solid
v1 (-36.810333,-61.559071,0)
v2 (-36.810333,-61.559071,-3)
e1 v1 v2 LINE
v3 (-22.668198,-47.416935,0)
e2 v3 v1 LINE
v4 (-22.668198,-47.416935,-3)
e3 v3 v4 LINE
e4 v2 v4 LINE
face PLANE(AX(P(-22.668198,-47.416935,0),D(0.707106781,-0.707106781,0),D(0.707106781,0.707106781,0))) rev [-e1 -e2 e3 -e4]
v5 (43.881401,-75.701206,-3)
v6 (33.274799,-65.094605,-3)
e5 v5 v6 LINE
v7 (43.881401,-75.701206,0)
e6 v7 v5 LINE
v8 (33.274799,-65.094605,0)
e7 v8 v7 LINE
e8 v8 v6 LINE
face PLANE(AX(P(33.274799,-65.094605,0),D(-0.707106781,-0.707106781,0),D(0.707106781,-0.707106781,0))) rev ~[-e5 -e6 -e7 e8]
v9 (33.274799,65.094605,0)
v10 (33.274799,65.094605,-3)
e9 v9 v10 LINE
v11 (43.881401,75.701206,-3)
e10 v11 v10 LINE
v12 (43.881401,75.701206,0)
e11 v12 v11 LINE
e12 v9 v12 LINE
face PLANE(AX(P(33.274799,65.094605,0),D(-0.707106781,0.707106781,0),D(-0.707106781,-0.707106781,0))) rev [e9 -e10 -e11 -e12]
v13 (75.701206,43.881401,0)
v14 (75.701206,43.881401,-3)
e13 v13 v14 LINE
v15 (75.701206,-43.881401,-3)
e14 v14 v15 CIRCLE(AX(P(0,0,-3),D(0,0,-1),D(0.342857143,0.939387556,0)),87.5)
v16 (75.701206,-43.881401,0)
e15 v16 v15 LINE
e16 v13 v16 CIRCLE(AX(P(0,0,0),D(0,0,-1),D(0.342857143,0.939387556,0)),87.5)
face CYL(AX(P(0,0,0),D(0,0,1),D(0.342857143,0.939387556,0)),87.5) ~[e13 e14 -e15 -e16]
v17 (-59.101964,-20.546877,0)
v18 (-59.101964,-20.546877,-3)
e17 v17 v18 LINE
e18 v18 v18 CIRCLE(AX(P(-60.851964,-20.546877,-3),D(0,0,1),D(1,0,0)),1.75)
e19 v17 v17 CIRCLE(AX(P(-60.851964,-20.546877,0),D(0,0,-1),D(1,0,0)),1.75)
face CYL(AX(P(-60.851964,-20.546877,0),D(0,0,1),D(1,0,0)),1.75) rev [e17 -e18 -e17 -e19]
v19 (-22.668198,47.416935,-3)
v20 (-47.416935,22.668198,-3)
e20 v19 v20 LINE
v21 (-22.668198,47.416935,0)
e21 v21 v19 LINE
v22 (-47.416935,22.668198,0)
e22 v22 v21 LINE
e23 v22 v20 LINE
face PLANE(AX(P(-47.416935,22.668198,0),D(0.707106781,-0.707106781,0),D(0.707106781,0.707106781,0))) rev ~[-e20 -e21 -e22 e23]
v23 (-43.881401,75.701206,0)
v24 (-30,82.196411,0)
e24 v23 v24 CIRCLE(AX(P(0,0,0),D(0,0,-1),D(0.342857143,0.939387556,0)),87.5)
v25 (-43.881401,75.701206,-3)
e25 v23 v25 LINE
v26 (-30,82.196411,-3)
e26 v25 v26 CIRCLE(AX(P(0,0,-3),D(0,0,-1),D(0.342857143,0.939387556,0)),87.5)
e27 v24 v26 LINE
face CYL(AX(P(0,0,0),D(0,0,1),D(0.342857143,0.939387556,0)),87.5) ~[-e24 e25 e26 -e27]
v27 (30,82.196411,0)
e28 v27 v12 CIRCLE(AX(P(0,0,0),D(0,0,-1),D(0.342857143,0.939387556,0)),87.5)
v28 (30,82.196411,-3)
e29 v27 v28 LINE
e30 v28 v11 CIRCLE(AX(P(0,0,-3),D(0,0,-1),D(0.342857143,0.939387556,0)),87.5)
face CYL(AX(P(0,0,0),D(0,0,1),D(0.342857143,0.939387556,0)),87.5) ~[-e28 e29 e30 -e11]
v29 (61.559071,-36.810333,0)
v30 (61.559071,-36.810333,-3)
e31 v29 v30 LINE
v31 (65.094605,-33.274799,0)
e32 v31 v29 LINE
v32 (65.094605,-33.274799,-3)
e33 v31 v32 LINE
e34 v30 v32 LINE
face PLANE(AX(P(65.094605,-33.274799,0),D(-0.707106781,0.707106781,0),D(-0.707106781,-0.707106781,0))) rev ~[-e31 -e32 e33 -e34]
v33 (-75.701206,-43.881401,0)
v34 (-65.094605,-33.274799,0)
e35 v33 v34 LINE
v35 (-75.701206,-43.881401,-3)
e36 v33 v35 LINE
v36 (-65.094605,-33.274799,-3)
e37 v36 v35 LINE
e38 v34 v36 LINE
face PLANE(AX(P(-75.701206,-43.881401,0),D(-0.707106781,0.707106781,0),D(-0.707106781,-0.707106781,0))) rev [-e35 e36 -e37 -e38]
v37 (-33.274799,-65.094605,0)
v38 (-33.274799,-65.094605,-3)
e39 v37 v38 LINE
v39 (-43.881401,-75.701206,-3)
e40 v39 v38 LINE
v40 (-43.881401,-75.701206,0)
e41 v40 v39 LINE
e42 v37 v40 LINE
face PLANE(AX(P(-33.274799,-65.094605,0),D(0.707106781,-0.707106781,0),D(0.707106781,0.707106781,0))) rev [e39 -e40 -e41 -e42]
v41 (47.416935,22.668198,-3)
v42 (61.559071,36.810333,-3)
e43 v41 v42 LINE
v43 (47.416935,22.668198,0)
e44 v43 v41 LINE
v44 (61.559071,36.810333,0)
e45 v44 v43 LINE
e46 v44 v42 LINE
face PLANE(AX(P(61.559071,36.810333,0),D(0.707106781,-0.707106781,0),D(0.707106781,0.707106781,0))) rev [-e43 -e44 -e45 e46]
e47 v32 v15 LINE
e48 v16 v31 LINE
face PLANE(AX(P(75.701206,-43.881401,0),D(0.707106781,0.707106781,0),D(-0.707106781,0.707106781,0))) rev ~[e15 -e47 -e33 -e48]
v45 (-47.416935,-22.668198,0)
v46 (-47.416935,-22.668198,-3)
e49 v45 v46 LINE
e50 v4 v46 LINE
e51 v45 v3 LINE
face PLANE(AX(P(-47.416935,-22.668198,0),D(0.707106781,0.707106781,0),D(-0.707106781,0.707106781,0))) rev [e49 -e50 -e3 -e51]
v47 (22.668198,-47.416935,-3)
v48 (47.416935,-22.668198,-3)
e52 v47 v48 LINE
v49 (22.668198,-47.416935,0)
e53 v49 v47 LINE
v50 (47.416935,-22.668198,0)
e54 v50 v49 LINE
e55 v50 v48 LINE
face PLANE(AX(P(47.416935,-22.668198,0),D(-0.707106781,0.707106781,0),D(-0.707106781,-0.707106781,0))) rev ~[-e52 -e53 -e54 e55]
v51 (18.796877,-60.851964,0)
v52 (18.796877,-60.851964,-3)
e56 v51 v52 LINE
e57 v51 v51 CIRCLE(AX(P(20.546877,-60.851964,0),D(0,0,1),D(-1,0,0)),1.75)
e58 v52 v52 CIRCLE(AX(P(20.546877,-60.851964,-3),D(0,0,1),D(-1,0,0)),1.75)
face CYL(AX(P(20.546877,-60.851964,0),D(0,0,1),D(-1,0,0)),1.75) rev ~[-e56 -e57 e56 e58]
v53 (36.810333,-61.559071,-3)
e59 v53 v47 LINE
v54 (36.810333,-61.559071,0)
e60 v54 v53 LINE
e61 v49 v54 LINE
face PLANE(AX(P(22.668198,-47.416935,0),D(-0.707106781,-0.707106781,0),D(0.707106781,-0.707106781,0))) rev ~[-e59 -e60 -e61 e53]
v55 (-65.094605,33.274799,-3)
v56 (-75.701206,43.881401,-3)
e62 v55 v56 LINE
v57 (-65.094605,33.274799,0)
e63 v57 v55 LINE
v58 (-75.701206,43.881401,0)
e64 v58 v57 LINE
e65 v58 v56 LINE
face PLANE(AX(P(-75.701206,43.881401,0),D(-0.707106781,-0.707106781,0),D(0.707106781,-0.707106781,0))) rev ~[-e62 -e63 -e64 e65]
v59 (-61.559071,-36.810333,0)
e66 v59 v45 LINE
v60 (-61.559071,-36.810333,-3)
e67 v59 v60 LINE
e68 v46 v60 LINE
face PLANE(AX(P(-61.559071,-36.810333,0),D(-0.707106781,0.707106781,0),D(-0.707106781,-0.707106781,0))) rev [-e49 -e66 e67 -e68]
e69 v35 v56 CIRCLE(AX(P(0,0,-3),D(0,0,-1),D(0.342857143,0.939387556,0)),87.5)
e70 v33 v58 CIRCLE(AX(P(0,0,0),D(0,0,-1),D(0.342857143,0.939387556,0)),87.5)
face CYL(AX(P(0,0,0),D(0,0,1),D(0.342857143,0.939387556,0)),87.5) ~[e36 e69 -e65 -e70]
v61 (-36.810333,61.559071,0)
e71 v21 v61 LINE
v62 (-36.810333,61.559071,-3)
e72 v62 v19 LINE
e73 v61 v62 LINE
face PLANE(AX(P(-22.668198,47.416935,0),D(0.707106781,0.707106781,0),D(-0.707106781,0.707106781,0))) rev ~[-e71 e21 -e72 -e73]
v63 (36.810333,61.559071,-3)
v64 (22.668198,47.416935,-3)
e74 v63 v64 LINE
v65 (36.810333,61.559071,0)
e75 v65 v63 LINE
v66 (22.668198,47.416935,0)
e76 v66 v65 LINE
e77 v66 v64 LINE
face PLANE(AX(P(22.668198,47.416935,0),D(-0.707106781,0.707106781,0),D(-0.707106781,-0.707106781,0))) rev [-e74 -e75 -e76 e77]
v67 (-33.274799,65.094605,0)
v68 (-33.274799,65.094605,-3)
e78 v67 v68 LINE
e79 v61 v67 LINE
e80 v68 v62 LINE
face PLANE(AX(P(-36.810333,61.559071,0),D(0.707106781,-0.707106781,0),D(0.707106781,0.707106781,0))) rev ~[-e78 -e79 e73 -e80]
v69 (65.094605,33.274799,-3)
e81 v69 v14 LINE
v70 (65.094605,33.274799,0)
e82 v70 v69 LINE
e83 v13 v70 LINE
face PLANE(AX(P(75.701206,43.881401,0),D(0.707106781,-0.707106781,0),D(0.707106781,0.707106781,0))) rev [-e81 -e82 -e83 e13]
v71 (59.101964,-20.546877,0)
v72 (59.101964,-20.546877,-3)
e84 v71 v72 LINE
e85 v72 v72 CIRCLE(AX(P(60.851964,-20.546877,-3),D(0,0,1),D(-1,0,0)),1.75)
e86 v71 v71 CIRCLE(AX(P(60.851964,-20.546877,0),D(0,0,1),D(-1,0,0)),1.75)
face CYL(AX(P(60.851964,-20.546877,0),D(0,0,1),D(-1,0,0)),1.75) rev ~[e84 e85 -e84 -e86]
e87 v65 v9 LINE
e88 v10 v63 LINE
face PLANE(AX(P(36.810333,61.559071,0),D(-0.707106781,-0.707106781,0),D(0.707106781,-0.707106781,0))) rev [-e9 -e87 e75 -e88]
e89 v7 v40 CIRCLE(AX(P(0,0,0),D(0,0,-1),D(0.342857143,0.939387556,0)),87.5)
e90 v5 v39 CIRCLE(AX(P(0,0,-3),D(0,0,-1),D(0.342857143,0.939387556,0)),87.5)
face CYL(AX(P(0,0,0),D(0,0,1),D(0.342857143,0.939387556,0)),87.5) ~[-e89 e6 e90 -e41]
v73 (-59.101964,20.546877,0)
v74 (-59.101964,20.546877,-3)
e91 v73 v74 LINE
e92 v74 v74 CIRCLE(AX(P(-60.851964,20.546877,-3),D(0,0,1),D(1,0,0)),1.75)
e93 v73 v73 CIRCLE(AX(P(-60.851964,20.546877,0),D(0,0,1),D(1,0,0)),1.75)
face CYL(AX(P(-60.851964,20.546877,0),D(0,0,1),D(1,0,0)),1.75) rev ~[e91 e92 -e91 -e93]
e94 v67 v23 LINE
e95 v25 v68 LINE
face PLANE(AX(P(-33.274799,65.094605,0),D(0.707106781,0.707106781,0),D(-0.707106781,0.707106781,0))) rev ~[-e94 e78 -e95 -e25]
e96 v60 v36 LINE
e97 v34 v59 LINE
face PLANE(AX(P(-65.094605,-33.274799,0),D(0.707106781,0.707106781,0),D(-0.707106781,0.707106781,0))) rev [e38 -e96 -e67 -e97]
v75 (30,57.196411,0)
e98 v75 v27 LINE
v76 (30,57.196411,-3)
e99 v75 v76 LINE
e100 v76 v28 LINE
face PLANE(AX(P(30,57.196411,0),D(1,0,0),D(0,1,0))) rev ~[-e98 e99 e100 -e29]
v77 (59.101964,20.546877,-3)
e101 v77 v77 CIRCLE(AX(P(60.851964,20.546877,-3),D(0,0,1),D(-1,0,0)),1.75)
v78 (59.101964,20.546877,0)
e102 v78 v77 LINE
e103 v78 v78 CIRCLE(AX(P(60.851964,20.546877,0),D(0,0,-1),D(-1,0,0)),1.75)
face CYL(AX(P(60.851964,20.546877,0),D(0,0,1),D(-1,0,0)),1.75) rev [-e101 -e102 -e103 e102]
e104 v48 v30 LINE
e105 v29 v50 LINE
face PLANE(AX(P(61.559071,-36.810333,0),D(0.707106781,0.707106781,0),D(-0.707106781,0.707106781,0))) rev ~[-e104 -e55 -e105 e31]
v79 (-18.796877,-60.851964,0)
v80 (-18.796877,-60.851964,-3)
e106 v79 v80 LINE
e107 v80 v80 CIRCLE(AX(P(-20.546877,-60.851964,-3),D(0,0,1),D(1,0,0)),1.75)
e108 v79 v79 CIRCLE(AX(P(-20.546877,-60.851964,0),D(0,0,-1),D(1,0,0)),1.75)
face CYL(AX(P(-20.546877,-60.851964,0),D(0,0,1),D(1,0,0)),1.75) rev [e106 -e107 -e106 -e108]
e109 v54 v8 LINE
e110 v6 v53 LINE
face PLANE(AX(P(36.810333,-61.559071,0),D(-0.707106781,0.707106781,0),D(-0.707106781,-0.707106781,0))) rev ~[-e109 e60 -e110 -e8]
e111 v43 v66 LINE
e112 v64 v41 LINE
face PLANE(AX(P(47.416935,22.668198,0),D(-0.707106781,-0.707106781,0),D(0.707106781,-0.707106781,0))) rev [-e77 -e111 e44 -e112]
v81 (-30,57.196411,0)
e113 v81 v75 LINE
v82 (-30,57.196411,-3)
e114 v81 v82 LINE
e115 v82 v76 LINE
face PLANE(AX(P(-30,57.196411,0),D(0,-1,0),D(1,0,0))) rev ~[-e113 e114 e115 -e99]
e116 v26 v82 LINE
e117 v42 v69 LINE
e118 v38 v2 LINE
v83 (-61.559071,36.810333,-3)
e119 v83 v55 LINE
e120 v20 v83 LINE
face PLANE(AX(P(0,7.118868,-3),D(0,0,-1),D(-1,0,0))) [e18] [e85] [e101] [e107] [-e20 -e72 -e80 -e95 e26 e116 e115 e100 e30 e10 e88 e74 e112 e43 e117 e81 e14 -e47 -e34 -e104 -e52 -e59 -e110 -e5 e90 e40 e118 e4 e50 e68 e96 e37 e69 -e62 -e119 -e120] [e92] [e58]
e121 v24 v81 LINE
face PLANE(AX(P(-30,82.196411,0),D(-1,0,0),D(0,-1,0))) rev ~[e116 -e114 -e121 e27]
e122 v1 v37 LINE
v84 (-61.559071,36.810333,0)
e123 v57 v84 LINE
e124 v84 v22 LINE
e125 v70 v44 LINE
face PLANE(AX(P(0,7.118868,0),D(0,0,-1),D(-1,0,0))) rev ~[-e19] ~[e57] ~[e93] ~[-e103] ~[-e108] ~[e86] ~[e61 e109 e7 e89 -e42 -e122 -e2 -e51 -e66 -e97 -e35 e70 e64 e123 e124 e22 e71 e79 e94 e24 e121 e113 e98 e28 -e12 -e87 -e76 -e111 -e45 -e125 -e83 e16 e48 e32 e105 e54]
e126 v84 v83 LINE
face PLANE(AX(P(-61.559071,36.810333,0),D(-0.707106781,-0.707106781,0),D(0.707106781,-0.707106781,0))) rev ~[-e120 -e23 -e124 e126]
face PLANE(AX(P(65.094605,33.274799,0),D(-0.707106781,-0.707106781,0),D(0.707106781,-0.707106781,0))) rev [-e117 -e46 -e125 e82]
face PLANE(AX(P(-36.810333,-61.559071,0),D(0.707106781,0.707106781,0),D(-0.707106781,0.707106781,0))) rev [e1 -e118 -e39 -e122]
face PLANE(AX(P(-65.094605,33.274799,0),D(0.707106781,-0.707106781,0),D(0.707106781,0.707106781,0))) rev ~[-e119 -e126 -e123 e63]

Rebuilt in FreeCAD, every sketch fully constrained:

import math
import FreeCAD as App
import Part
import Sketcher
Q = App.Units.Quantity

doc = App.newDocument("Part")
params = doc.addObject("Spreadsheet::Sheet", "Params")
for row, (alias, value) in enumerate([
    ("sketch1_radius", "87.5 mm"),
    ("sketch1_width", "60 mm"),
    ("sketch1_height", "25 mm"),
    ("pad1_length", "3 mm"),
    ("sketch2_diameter", "3.5 mm"),
    ("sketch2_radius", "87.5 mm"),
    ("sketch2_length", "20 mm"),
    ("sketch2_length2", "35 mm"),
    ("sketch2_length3", "5 mm"),
    ("sketch3_diameter", "3.5 mm"),
    ("sketch3_radius", "87.5 mm"),
    ("sketch3_length", "20 mm"),
    ("sketch3_length2", "35 mm"),
    ("sketch3_length3", "5 mm"),
], start=1):
    params.set(f"A{row}", alias)
    params.set(f"B{row}", "=" + value)
    params.setAlias(f"B{row}", alias)

body = doc.addObject("PartDesign::Body", "Body")

# Sketch on XY plane
sketch1 = body.newObject("Sketcher::SketchObject", "Sketch")
sketch1.AttachmentSupport = (doc.getObject("XY_Plane"), [""])
sketch1.MapMode = "FlatFace"
sketch1.addGeometry([
    Part.LineSegment(App.Vector(30, 57, 0), App.Vector(-30, 57, 0)),
    Part.LineSegment(App.Vector(-30, 57, 0), App.Vector(-30, 82, 0)),
    Part.ArcOfCircle(Part.Circle(App.Vector(0, 0, 0), App.Vector(0, 0, 1), 88), math.radians(110), math.radians(430)),
    Part.LineSegment(App.Vector(30, 82, 0), App.Vector(30, 57, 0)),
], False)
sketch1.addConstraint([
    Sketcher.Constraint("Coincident", 0, 2, 1, 1),
    Sketcher.Constraint("Coincident", 1, 2, 2, 1),
    Sketcher.Constraint("Coincident", 2, 2, 3, 1),
    Sketcher.Constraint("Coincident", 3, 2, 0, 1),
    Sketcher.Constraint("Horizontal", 0),
    Sketcher.Constraint("Vertical", 1),
    Sketcher.Constraint("Vertical", 3),
    Sketcher.Constraint("Coincident", 2, 3, -1, 1),
    Sketcher.Constraint("Horizontal", 1, 2, 2, 2),
    Sketcher.Constraint("Radius", 2, Q("87.5 mm")),
    Sketcher.Constraint("DistanceX", 0, 2, 0, 1, Q("60 mm")),
    Sketcher.Constraint("DistanceY", 1, 1, 1, 2, Q("25 mm")),
])
sketch1.setExpression("Constraints[9]", "Params.sketch1_radius")
sketch1.setExpression("Constraints[10]", "Params.sketch1_width")
sketch1.setExpression("Constraints[11]", "Params.sketch1_height")
pad1 = body.newObject("PartDesign::Pad", "Pad")
pad1.Profile = sketch1
pad1.setExpression("Length", "Params.pad1_length")
pad1.Reversed = True

# Sketch on XY plane
sketch2 = body.newObject("Sketcher::SketchObject", "Sketch001")
sketch2.AttachmentSupport = (doc.getObject("XY_Plane"), [""])
sketch2.MapMode = "FlatFace"
sketch2.addGeometry([
    Part.LineSegment(App.Vector(-61.6, 36.8, 0), App.Vector(-47.4, 22.7, 0)),  # 0
    Part.LineSegment(App.Vector(-47.4, 22.7, 0), App.Vector(-22.7, 47.4, 0)),  # 1
    Part.LineSegment(App.Vector(-22.7, 47.4, 0), App.Vector(-36.8, 61.6, 0)),  # 2
    Part.LineSegment(App.Vector(-36.8, 61.6, 0), App.Vector(-33.3, 65.1, 0)),  # 3
    Part.LineSegment(App.Vector(-33.3, 65.1, 0), App.Vector(-43.9, 75.7, 0)),  # 4
    Part.ArcOfCircle(Part.Circle(App.Vector(0, 0, 0), App.Vector(0, 0, 1), 87.5), math.radians(120), math.radians(150)),  # 5
    Part.LineSegment(App.Vector(-75.7, 43.9, 0), App.Vector(-65.1, 33.3, 0)),  # 6
    Part.LineSegment(App.Vector(-65.1, 33.3, 0), App.Vector(-61.6, 36.8, 0)),  # 7
    Part.Circle(App.Vector(-60.9, 20.5, 0), App.Vector(0, 0, 1), 1.8),  # 8
    Part.Circle(App.Vector(-20.5, 60.9, 0), App.Vector(0, 0, 1), 1.8),  # 9
], False)
sketch2.addConstraint([
    Sketcher.Constraint("Coincident", 0, 2, 1, 1),
    Sketcher.Constraint("Coincident", 1, 2, 2, 1),
    Sketcher.Constraint("Coincident", 2, 2, 3, 1),
    Sketcher.Constraint("Coincident", 3, 2, 4, 1),
    Sketcher.Constraint("Coincident", 4, 2, 5, 1),
    Sketcher.Constraint("Coincident", 5, 2, 6, 1),
    Sketcher.Constraint("Coincident", 6, 2, 7, 1),
    Sketcher.Constraint("Coincident", 7, 2, 0, 1),
    Sketcher.Constraint("Coincident", 5, 3, -1, 1),
    Sketcher.Constraint("Equal", 8, 9),
    Sketcher.Constraint("Perpendicular", 0, 1),
    Sketcher.Constraint("Perpendicular", 1, 2),
    Sketcher.Constraint("Perpendicular", 2, 3),
    Sketcher.Constraint("Perpendicular", 3, 4),
    Sketcher.Constraint("Parallel", 4, 6),
    Sketcher.Constraint("Perpendicular", 6, 7),
    Sketcher.Constraint("Equal", 0, 2),
    Sketcher.Constraint("Equal", 4, 6),
    Sketcher.Constraint("Equal", 3, 7),
    Sketcher.Constraint("Diameter", 8, Q("3.5 mm")),
    Sketcher.Constraint("Radius", 5, Q("87.5 mm")),
    Sketcher.Constraint("Angle", 0, Q("-45 deg")),
    Sketcher.Constraint("Distance", 0, Q("20 mm")),
    Sketcher.Constraint("Distance", 1, Q("35 mm")),
    Sketcher.Constraint("Distance", 3, Q("5 mm")),
    Sketcher.Constraint("Distance", 4, Q("15 mm")),
    Sketcher.Constraint("DistanceX", 8, 3, 0, 2, Q("13.435029 mm")),
    Sketcher.Constraint("DistanceY", 8, 3, 0, 2, Q("2.12132 mm")),
    Sketcher.Constraint("DistanceX", 1, 2, 9, 3, Q("2.12132 mm")),
    Sketcher.Constraint("DistanceY", 1, 2, 9, 3, Q("13.435029 mm")),
])
sketch2.setExpression("Constraints[19]", "Params.sketch2_diameter")
sketch2.setExpression("Constraints[20]", "Params.sketch2_radius")
sketch2.setExpression("Constraints[22]", "Params.sketch2_length")
sketch2.setExpression("Constraints[23]", "Params.sketch2_length2")
sketch2.setExpression("Constraints[24]", "Params.sketch2_length3")
pocket1 = body.newObject("PartDesign::Pocket", "Pocket")
pocket1.Profile = sketch2
pocket1.Type = "ThroughAll"
doc.recompute()

mirrored = body.newObject("PartDesign::Mirrored", "Mirrored")
mirrored.Originals = [pocket1]
mirrored.MirrorPlane = (doc.getObject("YZ_Plane"), [""])
body.Tip = mirrored
doc.recompute()

mirrored2 = body.newObject("PartDesign::Mirrored", "Mirrored001")
mirrored2.Originals = [pocket1]
mirrored2.MirrorPlane = (doc.getObject("XZ_Plane"), [""])
body.Tip = mirrored2

# Sketch on XY plane
sketch3 = body.newObject("Sketcher::SketchObject", "Sketch002")
sketch3.AttachmentSupport = (doc.getObject("XY_Plane"), [""])
sketch3.MapMode = "FlatFace"
sketch3.addGeometry([
    Part.LineSegment(App.Vector(61.6, -36.8, 0), App.Vector(47.4, -22.7, 0)),  # 0
    Part.LineSegment(App.Vector(47.4, -22.7, 0), App.Vector(22.7, -47.4, 0)),  # 1
    Part.LineSegment(App.Vector(22.7, -47.4, 0), App.Vector(36.8, -61.6, 0)),  # 2
    Part.LineSegment(App.Vector(36.8, -61.6, 0), App.Vector(33.3, -65.1, 0)),  # 3
    Part.LineSegment(App.Vector(33.3, -65.1, 0), App.Vector(43.9, -75.7, 0)),  # 4
    Part.ArcOfCircle(Part.Circle(App.Vector(0, 0, 0), App.Vector(0, 0, 1), 87.5), math.radians(-60), math.radians(-30)),  # 5
    Part.LineSegment(App.Vector(75.7, -43.9, 0), App.Vector(65.1, -33.3, 0)),  # 6
    Part.LineSegment(App.Vector(65.1, -33.3, 0), App.Vector(61.6, -36.8, 0)),  # 7
    Part.Circle(App.Vector(60.9, -20.5, 0), App.Vector(0, 0, 1), 1.8),  # 8
    Part.Circle(App.Vector(20.5, -60.9, 0), App.Vector(0, 0, 1), 1.8),  # 9
], False)
sketch3.addConstraint([
    Sketcher.Constraint("Coincident", 0, 2, 1, 1),
    Sketcher.Constraint("Coincident", 1, 2, 2, 1),
    Sketcher.Constraint("Coincident", 2, 2, 3, 1),
    Sketcher.Constraint("Coincident", 3, 2, 4, 1),
    Sketcher.Constraint("Coincident", 4, 2, 5, 1),
    Sketcher.Constraint("Coincident", 5, 2, 6, 1),
    Sketcher.Constraint("Coincident", 6, 2, 7, 1),
    Sketcher.Constraint("Coincident", 7, 2, 0, 1),
    Sketcher.Constraint("Coincident", 5, 3, -1, 1),
    Sketcher.Constraint("Equal", 8, 9),
    Sketcher.Constraint("Perpendicular", 0, 1),
    Sketcher.Constraint("Perpendicular", 1, 2),
    Sketcher.Constraint("Perpendicular", 2, 3),
    Sketcher.Constraint("Perpendicular", 3, 4),
    Sketcher.Constraint("Parallel", 4, 6),
    Sketcher.Constraint("Perpendicular", 6, 7),
    Sketcher.Constraint("Equal", 0, 2),
    Sketcher.Constraint("Equal", 4, 6),
    Sketcher.Constraint("Equal", 3, 7),
    Sketcher.Constraint("Diameter", 8, Q("3.5 mm")),
    Sketcher.Constraint("Radius", 5, Q("87.5 mm")),
    Sketcher.Constraint("Angle", 0, Q("135 deg")),
    Sketcher.Constraint("Distance", 0, Q("20 mm")),
    Sketcher.Constraint("Distance", 1, Q("35 mm")),
    Sketcher.Constraint("Distance", 3, Q("5 mm")),
    Sketcher.Constraint("Distance", 4, Q("15 mm")),
    Sketcher.Constraint("DistanceX", 0, 2, 8, 3, Q("13.435029 mm")),
    Sketcher.Constraint("DistanceY", 0, 2, 8, 3, Q("2.12132 mm")),
    Sketcher.Constraint("DistanceX", 9, 3, 1, 2, Q("2.12132 mm")),
    Sketcher.Constraint("DistanceY", 9, 3, 1, 2, Q("13.435029 mm")),
])
sketch3.setExpression("Constraints[19]", "Params.sketch3_diameter")
sketch3.setExpression("Constraints[20]", "Params.sketch3_radius")
sketch3.setExpression("Constraints[22]", "Params.sketch3_length")
sketch3.setExpression("Constraints[23]", "Params.sketch3_length2")
sketch3.setExpression("Constraints[24]", "Params.sketch3_length3")
pocket2 = body.newObject("PartDesign::Pocket", "Pocket001")
pocket2.Profile = sketch3
pocket2.Type = "ThroughAll"

doc.recompute()
